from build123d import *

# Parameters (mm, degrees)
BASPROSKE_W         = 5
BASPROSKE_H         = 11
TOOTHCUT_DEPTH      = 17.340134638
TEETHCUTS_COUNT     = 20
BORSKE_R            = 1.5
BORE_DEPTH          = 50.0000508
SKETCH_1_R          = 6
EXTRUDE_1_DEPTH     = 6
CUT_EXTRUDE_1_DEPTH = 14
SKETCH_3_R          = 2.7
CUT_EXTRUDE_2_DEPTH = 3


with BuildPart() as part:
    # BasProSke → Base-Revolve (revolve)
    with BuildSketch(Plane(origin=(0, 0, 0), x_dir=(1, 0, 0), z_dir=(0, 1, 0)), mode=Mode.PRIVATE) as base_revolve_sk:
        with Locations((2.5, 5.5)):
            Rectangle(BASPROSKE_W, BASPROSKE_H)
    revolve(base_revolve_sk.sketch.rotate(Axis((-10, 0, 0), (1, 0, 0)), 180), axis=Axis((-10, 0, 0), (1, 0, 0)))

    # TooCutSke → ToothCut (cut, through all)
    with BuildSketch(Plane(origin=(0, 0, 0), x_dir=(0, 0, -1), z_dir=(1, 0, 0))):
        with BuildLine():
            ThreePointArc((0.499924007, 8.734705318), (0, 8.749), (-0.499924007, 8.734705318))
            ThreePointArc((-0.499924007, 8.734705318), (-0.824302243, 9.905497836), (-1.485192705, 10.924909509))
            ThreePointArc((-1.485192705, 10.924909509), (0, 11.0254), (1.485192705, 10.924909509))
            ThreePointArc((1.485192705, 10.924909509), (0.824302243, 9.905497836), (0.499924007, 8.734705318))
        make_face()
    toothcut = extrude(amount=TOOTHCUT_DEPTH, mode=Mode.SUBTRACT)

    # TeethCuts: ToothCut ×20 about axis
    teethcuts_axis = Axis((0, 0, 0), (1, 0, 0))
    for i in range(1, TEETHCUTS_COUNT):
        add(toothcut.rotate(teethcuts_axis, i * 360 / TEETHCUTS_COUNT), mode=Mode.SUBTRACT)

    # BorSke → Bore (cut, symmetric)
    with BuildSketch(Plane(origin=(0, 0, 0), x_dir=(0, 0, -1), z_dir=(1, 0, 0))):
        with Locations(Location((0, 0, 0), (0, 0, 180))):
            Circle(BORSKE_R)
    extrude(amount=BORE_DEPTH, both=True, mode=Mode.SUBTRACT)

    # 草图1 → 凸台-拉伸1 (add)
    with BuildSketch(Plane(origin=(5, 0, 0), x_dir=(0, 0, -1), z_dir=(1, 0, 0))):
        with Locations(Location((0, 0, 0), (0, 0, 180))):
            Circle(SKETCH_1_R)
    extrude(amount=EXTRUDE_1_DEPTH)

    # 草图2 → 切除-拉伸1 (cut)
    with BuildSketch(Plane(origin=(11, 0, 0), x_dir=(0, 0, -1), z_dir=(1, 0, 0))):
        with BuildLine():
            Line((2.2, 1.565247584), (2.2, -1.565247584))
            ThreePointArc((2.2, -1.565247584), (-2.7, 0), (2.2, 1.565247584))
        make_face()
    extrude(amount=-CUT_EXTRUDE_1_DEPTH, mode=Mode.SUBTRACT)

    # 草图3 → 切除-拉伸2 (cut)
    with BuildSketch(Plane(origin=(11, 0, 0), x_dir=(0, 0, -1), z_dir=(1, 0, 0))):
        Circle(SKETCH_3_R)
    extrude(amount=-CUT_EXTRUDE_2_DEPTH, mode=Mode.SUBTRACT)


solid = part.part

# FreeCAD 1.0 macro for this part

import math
import FreeCAD as App
import Part
import Sketcher

V = App.Vector
Q = App.Units.Quantity

doc = App.newDocument("Part")
body = doc.addObject("PartDesign::Body", "Body")

sketch1 = doc.addObject("Sketcher::SketchObject", "Sketch")
body.addObject(sketch1)
sketch1.AttachmentSupport = (doc.XZ_Plane, [""])
sketch1.MapMode = "FlatFace"
sketch1.addGeometry(Part.LineSegment(V(0, -11, 0), V(0, 0, 0)), False)
sketch1.addGeometry(Part.LineSegment(V(0, 0, 0), V(5, 0, 0)), False)
sketch1.addGeometry(Part.LineSegment(V(5, 0, 0), V(5, -11, 0)), False)
sketch1.addGeometry(Part.LineSegment(V(5, -11, 0), V(0, -11, 0)), False)
sketch1.addConstraint(Sketcher.Constraint("Coincident", 0, 2, 1, 1))
sketch1.addConstraint(Sketcher.Constraint("Coincident", 1, 2, 2, 1))
sketch1.addConstraint(Sketcher.Constraint("Coincident", 2, 2, 3, 1))
sketch1.addConstraint(Sketcher.Constraint("Coincident", 3, 2, 0, 1))
sketch1.addConstraint(Sketcher.Constraint("Vertical", 0))
sketch1.addConstraint(Sketcher.Constraint("Horizontal", 1))
sketch1.addConstraint(Sketcher.Constraint("Vertical", 2))
sketch1.addConstraint(Sketcher.Constraint("Horizontal", 3))
sketch1.addConstraint(Sketcher.Constraint("Coincident", 0, 2, -1, 1))
sketch1.addConstraint(Sketcher.Constraint("DistanceX", 1, 1, 1, 2, Q("5 mm")))
sketch1.addConstraint(Sketcher.Constraint("DistanceY", 0, 1, 0, 2, Q("11 mm")))
revolution = doc.addObject("PartDesign::Revolution", "Revolution")
body.addObject(revolution)
revolution.Profile = sketch1
revolution.ReferenceAxis = (sketch1, ["H_Axis"])
revolution.Angle = 360

sketch2 = doc.addObject("Sketcher::SketchObject", "Sketch001")
body.addObject(sketch2)
sketch2.AttachmentSupport = (doc.YZ_Plane, [""])
sketch2.MapMode = "FlatFace"
sketch2.addGeometry(Part.ArcOfCircle(Part.Circle(V(0, 0, 0), V(0, 0, 1), 8.749), math.radians(-3.275705), math.radians(3.275705)), False)
sketch2.addGeometry(Part.ArcOfCircle(Part.Circle(V(8.264487, -4.47219, 0), V(0, 0, 1), 4), math.radians(48.309566), math.radians(83.249005)), False)
sketch2.addGeometry(Part.ArcOfCircle(Part.Circle(V(0, 0, 0), V(0, 0, 1), 11.0254), math.radians(-7.741647), math.radians(7.741647)), False)
sketch2.addGeometry(Part.ArcOfCircle(Part.Circle(V(8.264487, 4.47219, 0), V(0, 0, 1), 4), math.radians(-83.249005), math.radians(-48.309566)), False)
sketch2.addConstraint(Sketcher.Constraint("Coincident", 0, 1, 1, 2))
sketch2.addConstraint(Sketcher.Constraint("Coincident", 1, 1, 2, 1))
sketch2.addConstraint(Sketcher.Constraint("Coincident", 2, 2, 3, 2))
sketch2.addConstraint(Sketcher.Constraint("Coincident", 3, 1, 0, 2))
sketch2.addConstraint(Sketcher.Constraint("Coincident", 0, 3, -1, 1))
sketch2.addConstraint(Sketcher.Constraint("Coincident", 2, 3, -1, 1))
sketch2.addConstraint(Sketcher.Constraint("Equal", 1, 3))
sketch2.addConstraint(Sketcher.Constraint("Symmetric", 1, 3, 3, 3, -1))
sketch2.addConstraint(Sketcher.Constraint("Radius", 1, Q("4 mm")))
sketch2.addConstraint(Sketcher.Constraint("Radius", 0, Q("8.749 mm")))
sketch2.addConstraint(Sketcher.Constraint("Radius", 2, Q("11.0254 mm")))
sketch2.addConstraint(Sketcher.Constraint("DistanceY", 1, 3, -1, 1, Q("4.47219 mm")))
sketch2.addConstraint(Sketcher.Constraint("DistanceX", -1, 1, 1, 1, Q("10.92491 mm")))
pocket1 = doc.addObject("PartDesign::Pocket", "Pocket")
body.addObject(pocket1)
pocket1.Profile = sketch2
pocket1.Type = "ThroughAll"
pocket1.Reversed = True
doc.recompute()

polarpattern = doc.addObject("PartDesign::PolarPattern", "PolarPattern")
body.addObject(polarpattern)
polarpattern.Originals = [pocket1]
polarpattern.Axis = (doc.X_Axis, [""])
polarpattern.Angle = 360
polarpattern.Occurrences = 20
body.Tip = polarpattern

sketch3 = doc.addObject("Sketcher::SketchObject", "Sketch002")
body.addObject(sketch3)
sketch3.AttachmentSupport = (doc.YZ_Plane, [""])
sketch3.MapMode = "FlatFace"
sketch3.addGeometry(Part.Circle(V(0, 0, 0), V(0, 0, 1), 1.5), False)
sketch3.addConstraint(Sketcher.Constraint("Coincident", 0, 3, -1, 1))
sketch3.addConstraint(Sketcher.Constraint("Diameter", 0, Q("3 mm")))
pocket2 = doc.addObject("PartDesign::Pocket", "Pocket001")
body.addObject(pocket2)
pocket2.Profile = sketch3
pocket2.Length = 100.000102
pocket2.Midplane = True

sketch4 = doc.addObject("Sketcher::SketchObject", "Sketch003")
body.addObject(sketch4)
sketch4.AttachmentSupport = (doc.YZ_Plane, [""])
sketch4.MapMode = "FlatFace"
sketch4.AttachmentOffset = App.Placement(V(0, 0, 5), App.Rotation())
sketch4.addGeometry(Part.Circle(V(0, 0, 0), V(0, 0, 1), 6), False)
sketch4.addConstraint(Sketcher.Constraint("Coincident", 0, 3, -1, 1))
sketch4.addConstraint(Sketcher.Constraint("Diameter", 0, Q("12 mm")))
pad1 = doc.addObject("PartDesign::Pad", "Pad")
body.addObject(pad1)
pad1.Profile = sketch4
pad1.Length = 6

sketch5 = doc.addObject("Sketcher::SketchObject", "Sketch004")
body.addObject(sketch5)
sketch5.AttachmentSupport = (doc.YZ_Plane, [""])
sketch5.MapMode = "FlatFace"
sketch5.AttachmentOffset = App.Placement(V(0, 0, 11), App.Rotation())
sketch5.addGeometry(Part.LineSegment(V(-1.565248, -2.2, 0), V(1.565248, -2.2, 0)), False)
sketch5.addGeometry(Part.ArcOfCircle(Part.Circle(V(0, 0, 0), V(0, 0, 1), 2.7), math.radians(-54.569055), math.radians(234.569055)), False)
sketch5.addConstraint(Sketcher.Constraint("Coincident", 0, 1, 1, 2))
sketch5.addConstraint(Sketcher.Constraint("Coincident", 1, 1, 0, 2))
sketch5.addConstraint(Sketcher.Constraint("Horizontal", 0))
sketch5.addConstraint(Sketcher.Constraint("Coincident", 1, 3, -1, 1))
sketch5.addConstraint(Sketcher.Constraint("Radius", 1, Q("2.7 mm")))
sketch5.addConstraint(Sketcher.Constraint("DistanceY", 0, 1, -1, 1, Q("2.2 mm")))
pocket3 = doc.addObject("PartDesign::Pocket", "Pocket002")
body.addObject(pocket3)
pocket3.Profile = sketch5
pocket3.Length = 14

sketch6 = doc.addObject("Sketcher::SketchObject", "Sketch005")
body.addObject(sketch6)
sketch6.AttachmentSupport = (doc.YZ_Plane, [""])
sketch6.MapMode = "FlatFace"
sketch6.AttachmentOffset = App.Placement(V(0, 0, 11), App.Rotation())
sketch6.addGeometry(Part.Circle(V(0, 0, 0), V(0, 0, 1), 2.7), False)
sketch6.addConstraint(Sketcher.Constraint("Coincident", 0, 3, -1, 1))
sketch6.addConstraint(Sketcher.Constraint("Diameter", 0, Q("5.4 mm")))
pocket4 = doc.addObject("PartDesign::Pocket", "Pocket003")
body.addObject(pocket4)
pocket4.Profile = sketch6
pocket4.Length = 3

doc.recompute()
